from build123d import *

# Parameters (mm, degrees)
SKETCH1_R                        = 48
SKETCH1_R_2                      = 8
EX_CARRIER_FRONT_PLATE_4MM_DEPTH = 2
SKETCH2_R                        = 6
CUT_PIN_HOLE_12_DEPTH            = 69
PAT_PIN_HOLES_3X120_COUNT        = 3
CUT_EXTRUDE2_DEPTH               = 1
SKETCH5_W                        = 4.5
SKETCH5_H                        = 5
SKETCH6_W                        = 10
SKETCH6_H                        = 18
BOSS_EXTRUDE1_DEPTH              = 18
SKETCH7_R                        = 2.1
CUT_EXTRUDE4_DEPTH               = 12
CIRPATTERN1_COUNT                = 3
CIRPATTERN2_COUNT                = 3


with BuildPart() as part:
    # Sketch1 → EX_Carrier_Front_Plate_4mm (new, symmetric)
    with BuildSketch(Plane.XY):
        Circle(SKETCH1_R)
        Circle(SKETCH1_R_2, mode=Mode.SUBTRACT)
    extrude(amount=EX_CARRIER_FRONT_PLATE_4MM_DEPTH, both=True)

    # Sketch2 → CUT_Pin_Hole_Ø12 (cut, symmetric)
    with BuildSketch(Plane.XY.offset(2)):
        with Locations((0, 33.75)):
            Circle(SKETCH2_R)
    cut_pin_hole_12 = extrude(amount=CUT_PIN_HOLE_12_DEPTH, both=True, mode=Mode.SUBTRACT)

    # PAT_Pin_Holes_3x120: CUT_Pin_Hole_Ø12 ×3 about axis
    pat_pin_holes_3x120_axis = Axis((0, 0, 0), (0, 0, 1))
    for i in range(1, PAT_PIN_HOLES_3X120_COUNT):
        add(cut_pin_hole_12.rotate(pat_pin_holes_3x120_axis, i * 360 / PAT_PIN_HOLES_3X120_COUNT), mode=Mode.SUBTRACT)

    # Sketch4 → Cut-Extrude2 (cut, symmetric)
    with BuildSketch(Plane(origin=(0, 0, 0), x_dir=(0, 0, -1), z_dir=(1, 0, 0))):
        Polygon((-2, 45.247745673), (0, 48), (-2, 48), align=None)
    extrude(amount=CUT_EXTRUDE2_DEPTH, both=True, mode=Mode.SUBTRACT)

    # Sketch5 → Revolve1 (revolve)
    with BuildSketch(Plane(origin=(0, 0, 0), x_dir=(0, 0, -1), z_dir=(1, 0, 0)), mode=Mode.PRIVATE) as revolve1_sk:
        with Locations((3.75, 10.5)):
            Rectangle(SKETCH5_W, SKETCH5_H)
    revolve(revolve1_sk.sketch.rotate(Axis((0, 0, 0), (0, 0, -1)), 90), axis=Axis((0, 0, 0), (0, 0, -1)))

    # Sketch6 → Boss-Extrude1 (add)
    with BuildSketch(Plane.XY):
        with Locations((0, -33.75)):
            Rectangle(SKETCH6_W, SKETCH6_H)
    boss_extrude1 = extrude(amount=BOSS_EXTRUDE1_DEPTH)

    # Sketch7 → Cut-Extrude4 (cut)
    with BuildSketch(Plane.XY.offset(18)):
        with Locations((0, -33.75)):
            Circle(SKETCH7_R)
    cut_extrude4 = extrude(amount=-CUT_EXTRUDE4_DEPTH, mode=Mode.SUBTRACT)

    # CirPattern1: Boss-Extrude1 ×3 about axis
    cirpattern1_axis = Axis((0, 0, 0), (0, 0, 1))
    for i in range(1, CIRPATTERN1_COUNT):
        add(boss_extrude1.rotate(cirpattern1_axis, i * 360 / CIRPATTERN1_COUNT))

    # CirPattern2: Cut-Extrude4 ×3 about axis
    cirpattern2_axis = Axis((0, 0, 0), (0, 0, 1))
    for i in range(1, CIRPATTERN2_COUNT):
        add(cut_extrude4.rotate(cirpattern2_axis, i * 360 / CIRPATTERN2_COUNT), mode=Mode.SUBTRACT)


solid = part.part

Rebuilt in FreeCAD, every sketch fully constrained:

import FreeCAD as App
import Part
import Sketcher
from FreeCAD import Vector

doc = App.newDocument("Part")
params = doc.addObject("Spreadsheet::Sheet", "Params")
for row, (alias, value) in enumerate([
    ("sketch1_diameter", "96 mm"),
    ("sketch1_diameter2", "16 mm"),
    ("pad1_length", "4 mm"),
    ("sketch2_diameter", "12 mm"),
    ("pocket1_length", "138 mm"),
    ("sketch3_height", "2 mm"),
    ("pocket2_length", "2 mm"),
    ("sketch4_width", "5 mm"),
    ("sketch4_height", "4.5 mm"),
    ("revolution_angle", "360 deg"),
    ("sketch5_width", "10 mm"),
    ("sketch5_height", "18 mm"),
    ("pad2_length", "18 mm"),
    ("sketch6_diameter", "4.2 mm"),
    ("pocket3_length", "12 mm"),
], start=1):
    params.set(f"A{row}", alias)
    params.set(f"B{row}", "=" + value)
    params.setAlias(f"B{row}", alias)

body = doc.addObject("PartDesign::Body", "Body")

# Sketch on XY plane
sketch1 = doc.addObject("Sketcher::SketchObject", "Sketch")
body.addObject(sketch1)
sketch1.AttachmentSupport = (doc.XY_Plane, [""])
sketch1.MapMode = "FlatFace"
sketch1.addGeometry([
    Part.Circle(Vector(0, 0, 0), Vector(0, 0, 1), 48),
    Part.Circle(Vector(0, 0, 0), Vector(0, 0, 1), 8),
], False)
sketch1.addConstraint([
    Sketcher.Constraint("Coincident", 0, 3, -1, 1),
    Sketcher.Constraint("Coincident", 1, 3, -1, 1),
    Sketcher.Constraint("Diameter", 0, 96.0),
    Sketcher.Constraint("Diameter", 1, 16.0),
])
sketch1.setExpression("Constraints[2]", "Params.sketch1_diameter")
sketch1.setExpression("Constraints[3]", "Params.sketch1_diameter2")
pad1 = doc.addObject("PartDesign::Pad", "Pad")
body.addObject(pad1)
pad1.Profile = sketch1
pad1.setExpression("Length", "Params.pad1_length")
pad1.Midplane = True

# Sketch on XY plane
sketch2 = doc.addObject("Sketcher::SketchObject", "Sketch001")
body.addObject(sketch2)
sketch2.AttachmentSupport = (doc.XY_Plane, [""])
sketch2.MapMode = "FlatFace"
sketch2.AttachmentOffset = App.Placement(Vector(0, 0, 2), App.Rotation())
sketch2.addGeometry(Part.Circle(Vector(0, 34, 0), Vector(0, 0, 1), 6), False)
sketch2.addConstraint([
    Sketcher.Constraint("PointOnObject", 0, 3, -2),
    Sketcher.Constraint("Diameter", 0, 12.0),
    Sketcher.Constraint("DistanceY", -1, 1, 0, 3, 33.75),
])
sketch2.setExpression("Constraints[1]", "Params.sketch2_diameter")
pocket1 = doc.addObject("PartDesign::Pocket", "Pocket")
body.addObject(pocket1)
pocket1.Profile = sketch2
pocket1.setExpression("Length", "Params.pocket1_length")
pocket1.Midplane = True
doc.recompute()

polarpattern = doc.addObject("PartDesign::PolarPattern", "PolarPattern")
body.addObject(polarpattern)
polarpattern.Originals = [pocket1]
polarpattern.Axis = (doc.Z_Axis, [""])
polarpattern.Angle = 360
polarpattern.Occurrences = 3
body.Tip = polarpattern

# Sketch on YZ plane
sketch3 = doc.addObject("Sketcher::SketchObject", "Sketch002")
body.addObject(sketch3)
sketch3.AttachmentSupport = (doc.YZ_Plane, [""])
sketch3.MapMode = "FlatFace"
sketch3.addGeometry([
    Part.LineSegment(Vector(45.2, 2, 0), Vector(48, 0, 0)),
    Part.LineSegment(Vector(48, 0, 0), Vector(48, 2, 0)),
    Part.LineSegment(Vector(48, 2, 0), Vector(45.2, 2, 0)),
], False)
sketch3.addConstraint([
    Sketcher.Constraint("Coincident", 0, 2, 1, 1),
    Sketcher.Constraint("Coincident", 1, 2, 2, 1),
    Sketcher.Constraint("Coincident", 2, 2, 0, 1),
    Sketcher.Constraint("Vertical", 1),
    Sketcher.Constraint("Horizontal", 2),
    Sketcher.Constraint("PointOnObject", 0, 2, -1),
    Sketcher.Constraint("DistanceY", 1, 1, 1, 2, 2.0),
    Sketcher.Constraint("DistanceX", -1, 1, 0, 2, 48.0),
    Sketcher.Constraint("Distance", 0, 3.402191),
])
sketch3.setExpression("Constraints[6]", "Params.sketch3_height")
pocket2 = doc.addObject("PartDesign::Pocket", "Pocket001")
body.addObject(pocket2)
pocket2.Profile = sketch3
pocket2.setExpression("Length", "Params.pocket2_length")
pocket2.Midplane = True

# Sketch on YZ plane
sketch4 = doc.addObject("Sketcher::SketchObject", "Sketch003")
body.addObject(sketch4)
sketch4.AttachmentSupport = (doc.YZ_Plane, [""])
sketch4.MapMode = "FlatFace"
sketch4.addGeometry([
    Part.LineSegment(Vector(13, -1.5, 0), Vector(8, -1.5, 0)),
    Part.LineSegment(Vector(8, -1.5, 0), Vector(8, -6, 0)),
    Part.LineSegment(Vector(8, -6, 0), Vector(13, -6, 0)),
    Part.LineSegment(Vector(13, -6, 0), Vector(13, -1.5, 0)),
], False)
sketch4.addConstraint([
    Sketcher.Constraint("Coincident", 0, 2, 1, 1),
    Sketcher.Constraint("Coincident", 1, 2, 2, 1),
    Sketcher.Constraint("Coincident", 2, 2, 3, 1),
    Sketcher.Constraint("Coincident", 3, 2, 0, 1),
    Sketcher.Constraint("Horizontal", 0),
    Sketcher.Constraint("Vertical", 1),
    Sketcher.Constraint("Horizontal", 2),
    Sketcher.Constraint("Vertical", 3),
    Sketcher.Constraint("DistanceX", 0, 2, 0, 1, 5.0),
    Sketcher.Constraint("DistanceY", 1, 2, 1, 1, 4.5),
    Sketcher.Constraint("DistanceX", -1, 1, 0, 2, 8.0),
    Sketcher.Constraint("DistanceY", 1, 2, -1, 1, 6.0),
])
sketch4.setExpression("Constraints[8]", "Params.sketch4_width")
sketch4.setExpression("Constraints[9]", "Params.sketch4_height")
revolution = doc.addObject("PartDesign::Revolution", "Revolution")
body.addObject(revolution)
revolution.Profile = sketch4
revolution.ReferenceAxis = (sketch4, ["V_Axis"])
revolution.setExpression("Angle", "Params.revolution_angle")

# Sketch on XY plane
sketch5 = doc.addObject("Sketcher::SketchObject", "Sketch004")
body.addObject(sketch5)
sketch5.AttachmentSupport = (doc.XY_Plane, [""])
sketch5.MapMode = "FlatFace"
sketch5.addGeometry([
    Part.LineSegment(Vector(-5, -25, 0), Vector(-5, -43, 0)),
    Part.LineSegment(Vector(-5, -43, 0), Vector(5, -43, 0)),
    Part.LineSegment(Vector(5, -43, 0), Vector(5, -25, 0)),
    Part.LineSegment(Vector(5, -25, 0), Vector(-5, -25, 0)),
], False)
sketch5.addConstraint([
    Sketcher.Constraint("Coincident", 0, 2, 1, 1),
    Sketcher.Constraint("Coincident", 1, 2, 2, 1),
    Sketcher.Constraint("Coincident", 2, 2, 3, 1),
    Sketcher.Constraint("Coincident", 3, 2, 0, 1),
    Sketcher.Constraint("Vertical", 0),
    Sketcher.Constraint("Horizontal", 1),
    Sketcher.Constraint("Vertical", 2),
    Sketcher.Constraint("Horizontal", 3),
    Sketcher.Constraint("DistanceX", 1, 1, 1, 2, 10.0),
    Sketcher.Constraint("DistanceY", 0, 2, 0, 1, 18.0),
    Sketcher.Constraint("DistanceX", 0, 2, -1, 1, 5.0),
    Sketcher.Constraint("DistanceY", 0, 2, -1, 1, 42.75),
])
sketch5.setExpression("Constraints[8]", "Params.sketch5_width")
sketch5.setExpression("Constraints[9]", "Params.sketch5_height")
pad2 = doc.addObject("PartDesign::Pad", "Pad001")
body.addObject(pad2)
pad2.Profile = sketch5
pad2.setExpression("Length", "Params.pad2_length")

# Sketch on XY plane
sketch6 = doc.addObject("Sketcher::SketchObject", "Sketch005")
body.addObject(sketch6)
sketch6.AttachmentSupport = (doc.XY_Plane, [""])
sketch6.MapMode = "FlatFace"
sketch6.AttachmentOffset = App.Placement(Vector(0, 0, 18), App.Rotation())
sketch6.addGeometry(Part.Circle(Vector(0, -33.8, 0), Vector(0, 0, 1), 2.1), False)
sketch6.addConstraint([
    Sketcher.Constraint("PointOnObject", 0, 3, -2),
    Sketcher.Constraint("Diameter", 0, 4.2),
    Sketcher.Constraint("DistanceY", 0, 3, -1, 1, 33.75),
])
sketch6.setExpression("Constraints[1]", "Params.sketch6_diameter")
pocket3 = doc.addObject("PartDesign::Pocket", "Pocket002")
body.addObject(pocket3)
pocket3.Profile = sketch6
pocket3.setExpression("Length", "Params.pocket3_length")
doc.recompute()

polarpattern2 = doc.addObject("PartDesign::PolarPattern", "PolarPattern001")
body.addObject(polarpattern2)
polarpattern2.Originals = [pad2]
polarpattern2.Axis = (doc.Z_Axis, [""])
polarpattern2.Angle = 360
polarpattern2.Occurrences = 3
body.Tip = polarpattern2
doc.recompute()

polarpattern3 = doc.addObject("PartDesign::PolarPattern", "PolarPattern002")
body.addObject(polarpattern3)
polarpattern3.Originals = [pocket3]
polarpattern3.Axis = (doc.Z_Axis, [""])
polarpattern3.Angle = 360
polarpattern3.Occurrences = 3
body.Tip = polarpattern3

doc.recompute()
